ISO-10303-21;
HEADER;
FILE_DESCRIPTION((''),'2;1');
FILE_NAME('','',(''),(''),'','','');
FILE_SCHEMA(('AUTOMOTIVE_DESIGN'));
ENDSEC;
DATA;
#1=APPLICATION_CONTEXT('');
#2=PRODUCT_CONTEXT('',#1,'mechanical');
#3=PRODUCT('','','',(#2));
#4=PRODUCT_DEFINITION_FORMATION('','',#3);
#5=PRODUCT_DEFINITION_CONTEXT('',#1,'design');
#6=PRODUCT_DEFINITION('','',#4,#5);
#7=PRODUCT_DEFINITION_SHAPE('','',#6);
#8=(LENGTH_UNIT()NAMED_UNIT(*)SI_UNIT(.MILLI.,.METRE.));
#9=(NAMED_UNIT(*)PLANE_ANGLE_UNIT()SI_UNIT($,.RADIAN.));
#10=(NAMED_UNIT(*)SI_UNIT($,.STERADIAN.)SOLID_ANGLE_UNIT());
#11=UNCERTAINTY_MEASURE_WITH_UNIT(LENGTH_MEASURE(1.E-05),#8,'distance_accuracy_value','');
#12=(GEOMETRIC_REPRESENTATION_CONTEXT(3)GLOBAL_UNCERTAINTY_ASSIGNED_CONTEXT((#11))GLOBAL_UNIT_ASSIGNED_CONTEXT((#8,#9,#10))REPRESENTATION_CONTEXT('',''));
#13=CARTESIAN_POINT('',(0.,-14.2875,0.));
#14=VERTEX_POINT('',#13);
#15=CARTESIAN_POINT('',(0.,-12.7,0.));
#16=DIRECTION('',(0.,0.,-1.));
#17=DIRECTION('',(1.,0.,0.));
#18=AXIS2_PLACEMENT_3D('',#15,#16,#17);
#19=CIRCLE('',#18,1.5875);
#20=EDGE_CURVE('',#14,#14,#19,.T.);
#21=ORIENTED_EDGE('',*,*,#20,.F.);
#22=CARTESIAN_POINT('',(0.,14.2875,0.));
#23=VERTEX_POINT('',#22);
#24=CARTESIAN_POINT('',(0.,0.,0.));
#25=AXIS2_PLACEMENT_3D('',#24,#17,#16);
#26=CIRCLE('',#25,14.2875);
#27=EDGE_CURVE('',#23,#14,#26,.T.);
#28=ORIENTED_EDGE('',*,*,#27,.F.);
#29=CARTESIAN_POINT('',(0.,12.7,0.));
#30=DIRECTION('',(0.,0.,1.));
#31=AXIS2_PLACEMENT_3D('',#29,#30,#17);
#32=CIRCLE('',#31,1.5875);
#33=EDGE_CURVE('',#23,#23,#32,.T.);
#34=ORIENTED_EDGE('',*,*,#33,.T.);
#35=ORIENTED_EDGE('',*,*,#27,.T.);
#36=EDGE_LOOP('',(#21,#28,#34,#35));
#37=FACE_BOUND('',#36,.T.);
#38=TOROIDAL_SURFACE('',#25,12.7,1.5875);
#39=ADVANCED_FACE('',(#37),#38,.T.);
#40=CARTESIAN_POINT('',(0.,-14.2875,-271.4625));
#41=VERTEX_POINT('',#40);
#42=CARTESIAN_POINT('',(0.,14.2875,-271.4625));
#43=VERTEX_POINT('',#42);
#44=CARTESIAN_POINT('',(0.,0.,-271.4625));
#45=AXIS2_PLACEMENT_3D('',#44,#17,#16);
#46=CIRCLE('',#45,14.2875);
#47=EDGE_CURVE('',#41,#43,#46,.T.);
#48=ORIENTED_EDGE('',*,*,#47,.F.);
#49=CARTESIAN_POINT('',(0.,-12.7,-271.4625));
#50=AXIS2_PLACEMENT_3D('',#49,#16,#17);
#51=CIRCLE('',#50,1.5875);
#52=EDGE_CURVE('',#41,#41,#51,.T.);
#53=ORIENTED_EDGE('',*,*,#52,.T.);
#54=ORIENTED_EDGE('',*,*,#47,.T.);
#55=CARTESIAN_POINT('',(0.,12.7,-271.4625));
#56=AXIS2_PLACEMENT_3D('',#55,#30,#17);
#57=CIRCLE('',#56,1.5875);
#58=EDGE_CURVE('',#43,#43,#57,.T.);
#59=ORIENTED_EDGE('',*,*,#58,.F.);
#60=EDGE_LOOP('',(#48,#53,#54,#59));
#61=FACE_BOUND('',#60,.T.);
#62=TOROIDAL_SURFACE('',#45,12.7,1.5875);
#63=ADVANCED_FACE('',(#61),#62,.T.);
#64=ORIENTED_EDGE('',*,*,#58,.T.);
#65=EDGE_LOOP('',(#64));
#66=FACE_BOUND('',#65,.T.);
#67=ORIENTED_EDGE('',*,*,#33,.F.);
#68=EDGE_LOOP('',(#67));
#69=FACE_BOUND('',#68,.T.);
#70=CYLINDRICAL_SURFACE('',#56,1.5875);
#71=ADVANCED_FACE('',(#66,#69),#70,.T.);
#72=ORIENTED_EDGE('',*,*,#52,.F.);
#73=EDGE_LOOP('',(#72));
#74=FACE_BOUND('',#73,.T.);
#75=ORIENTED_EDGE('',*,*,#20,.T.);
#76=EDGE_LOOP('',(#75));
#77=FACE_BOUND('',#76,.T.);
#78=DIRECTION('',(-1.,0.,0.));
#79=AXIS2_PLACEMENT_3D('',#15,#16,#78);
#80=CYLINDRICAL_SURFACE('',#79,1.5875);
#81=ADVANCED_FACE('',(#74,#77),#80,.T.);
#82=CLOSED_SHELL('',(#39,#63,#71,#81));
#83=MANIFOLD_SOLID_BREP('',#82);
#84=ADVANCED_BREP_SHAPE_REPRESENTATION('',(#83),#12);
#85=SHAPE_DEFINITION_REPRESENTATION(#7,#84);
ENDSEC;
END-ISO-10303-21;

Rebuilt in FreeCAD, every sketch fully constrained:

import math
import FreeCAD as App
import Part
import Sketcher
Q = App.Units.Quantity

doc = App.newDocument("Part")
body = doc.addObject("PartDesign::Body", "Body")

sketch1 = body.newObject("Sketcher::SketchObject", "Sketch")
sketch1.AttachmentSupport = (doc.getObject("XY_Plane"), [""])
sketch1.MapMode = "FlatFace"
sketch1.addGeometry(Part.Circle(App.Vector(0, 12.7, 0), App.Vector(0, 0, 1), 1.6), False)
sketch1.addConstraint([
    Sketcher.Constraint("PointOnObject", 0, 3, -2),
    Sketcher.Constraint("Diameter", 0, Q("0.125 in")),
    Sketcher.Constraint("DistanceY", -1, 1, 0, 3, Q("0.5 in")),
])

sketch2 = body.newObject("Sketcher::SketchObject", "Sketch001")
sketch2.AttachmentSupport = (doc.getObject("YZ_Plane"), [""])
sketch2.MapMode = "FlatFace"
sketch2.addGeometry([
    Part.LineSegment(App.Vector(13, 0, 0), App.Vector(13, -271, 0)),
    Part.ArcOfCircle(Part.Circle(App.Vector(0, -271, 0), App.Vector(0, 0, 1), 13), math.radians(180), math.radians(360)),
    Part.LineSegment(App.Vector(-13, -271, 0), App.Vector(-13, 0, 0)),
    Part.ArcOfCircle(Part.Circle(App.Vector(0, 0, 0), App.Vector(0, 0, 1), 13), math.radians(0), math.radians(180)),
], False)
sketch2.addConstraint([
    Sketcher.Constraint("Tangent", 0, 2, 1, 2),
    Sketcher.Constraint("Tangent", 1, 1, 2, 1),
    Sketcher.Constraint("Tangent", 2, 2, 3, 2),
    Sketcher.Constraint("Tangent", 3, 1, 0, 1),
    Sketcher.Constraint("Vertical", 0),
    Sketcher.Constraint("Vertical", 2),
    Sketcher.Constraint("Coincident", 3, 3, -1, 1),
    Sketcher.Constraint("Radius", 1, Q("0.5 in")),
    Sketcher.Constraint("DistanceY", 0, 2, 0, 1, Q("10.6875 in")),
])
doc.recompute()

additivepipe = body.newObject("PartDesign::AdditivePipe", "AdditivePipe")
additivepipe.Profile = sketch1
additivepipe.Spine = (sketch2, ["Edge1", "Edge2", "Edge3", "Edge4"])

doc.recompute()
